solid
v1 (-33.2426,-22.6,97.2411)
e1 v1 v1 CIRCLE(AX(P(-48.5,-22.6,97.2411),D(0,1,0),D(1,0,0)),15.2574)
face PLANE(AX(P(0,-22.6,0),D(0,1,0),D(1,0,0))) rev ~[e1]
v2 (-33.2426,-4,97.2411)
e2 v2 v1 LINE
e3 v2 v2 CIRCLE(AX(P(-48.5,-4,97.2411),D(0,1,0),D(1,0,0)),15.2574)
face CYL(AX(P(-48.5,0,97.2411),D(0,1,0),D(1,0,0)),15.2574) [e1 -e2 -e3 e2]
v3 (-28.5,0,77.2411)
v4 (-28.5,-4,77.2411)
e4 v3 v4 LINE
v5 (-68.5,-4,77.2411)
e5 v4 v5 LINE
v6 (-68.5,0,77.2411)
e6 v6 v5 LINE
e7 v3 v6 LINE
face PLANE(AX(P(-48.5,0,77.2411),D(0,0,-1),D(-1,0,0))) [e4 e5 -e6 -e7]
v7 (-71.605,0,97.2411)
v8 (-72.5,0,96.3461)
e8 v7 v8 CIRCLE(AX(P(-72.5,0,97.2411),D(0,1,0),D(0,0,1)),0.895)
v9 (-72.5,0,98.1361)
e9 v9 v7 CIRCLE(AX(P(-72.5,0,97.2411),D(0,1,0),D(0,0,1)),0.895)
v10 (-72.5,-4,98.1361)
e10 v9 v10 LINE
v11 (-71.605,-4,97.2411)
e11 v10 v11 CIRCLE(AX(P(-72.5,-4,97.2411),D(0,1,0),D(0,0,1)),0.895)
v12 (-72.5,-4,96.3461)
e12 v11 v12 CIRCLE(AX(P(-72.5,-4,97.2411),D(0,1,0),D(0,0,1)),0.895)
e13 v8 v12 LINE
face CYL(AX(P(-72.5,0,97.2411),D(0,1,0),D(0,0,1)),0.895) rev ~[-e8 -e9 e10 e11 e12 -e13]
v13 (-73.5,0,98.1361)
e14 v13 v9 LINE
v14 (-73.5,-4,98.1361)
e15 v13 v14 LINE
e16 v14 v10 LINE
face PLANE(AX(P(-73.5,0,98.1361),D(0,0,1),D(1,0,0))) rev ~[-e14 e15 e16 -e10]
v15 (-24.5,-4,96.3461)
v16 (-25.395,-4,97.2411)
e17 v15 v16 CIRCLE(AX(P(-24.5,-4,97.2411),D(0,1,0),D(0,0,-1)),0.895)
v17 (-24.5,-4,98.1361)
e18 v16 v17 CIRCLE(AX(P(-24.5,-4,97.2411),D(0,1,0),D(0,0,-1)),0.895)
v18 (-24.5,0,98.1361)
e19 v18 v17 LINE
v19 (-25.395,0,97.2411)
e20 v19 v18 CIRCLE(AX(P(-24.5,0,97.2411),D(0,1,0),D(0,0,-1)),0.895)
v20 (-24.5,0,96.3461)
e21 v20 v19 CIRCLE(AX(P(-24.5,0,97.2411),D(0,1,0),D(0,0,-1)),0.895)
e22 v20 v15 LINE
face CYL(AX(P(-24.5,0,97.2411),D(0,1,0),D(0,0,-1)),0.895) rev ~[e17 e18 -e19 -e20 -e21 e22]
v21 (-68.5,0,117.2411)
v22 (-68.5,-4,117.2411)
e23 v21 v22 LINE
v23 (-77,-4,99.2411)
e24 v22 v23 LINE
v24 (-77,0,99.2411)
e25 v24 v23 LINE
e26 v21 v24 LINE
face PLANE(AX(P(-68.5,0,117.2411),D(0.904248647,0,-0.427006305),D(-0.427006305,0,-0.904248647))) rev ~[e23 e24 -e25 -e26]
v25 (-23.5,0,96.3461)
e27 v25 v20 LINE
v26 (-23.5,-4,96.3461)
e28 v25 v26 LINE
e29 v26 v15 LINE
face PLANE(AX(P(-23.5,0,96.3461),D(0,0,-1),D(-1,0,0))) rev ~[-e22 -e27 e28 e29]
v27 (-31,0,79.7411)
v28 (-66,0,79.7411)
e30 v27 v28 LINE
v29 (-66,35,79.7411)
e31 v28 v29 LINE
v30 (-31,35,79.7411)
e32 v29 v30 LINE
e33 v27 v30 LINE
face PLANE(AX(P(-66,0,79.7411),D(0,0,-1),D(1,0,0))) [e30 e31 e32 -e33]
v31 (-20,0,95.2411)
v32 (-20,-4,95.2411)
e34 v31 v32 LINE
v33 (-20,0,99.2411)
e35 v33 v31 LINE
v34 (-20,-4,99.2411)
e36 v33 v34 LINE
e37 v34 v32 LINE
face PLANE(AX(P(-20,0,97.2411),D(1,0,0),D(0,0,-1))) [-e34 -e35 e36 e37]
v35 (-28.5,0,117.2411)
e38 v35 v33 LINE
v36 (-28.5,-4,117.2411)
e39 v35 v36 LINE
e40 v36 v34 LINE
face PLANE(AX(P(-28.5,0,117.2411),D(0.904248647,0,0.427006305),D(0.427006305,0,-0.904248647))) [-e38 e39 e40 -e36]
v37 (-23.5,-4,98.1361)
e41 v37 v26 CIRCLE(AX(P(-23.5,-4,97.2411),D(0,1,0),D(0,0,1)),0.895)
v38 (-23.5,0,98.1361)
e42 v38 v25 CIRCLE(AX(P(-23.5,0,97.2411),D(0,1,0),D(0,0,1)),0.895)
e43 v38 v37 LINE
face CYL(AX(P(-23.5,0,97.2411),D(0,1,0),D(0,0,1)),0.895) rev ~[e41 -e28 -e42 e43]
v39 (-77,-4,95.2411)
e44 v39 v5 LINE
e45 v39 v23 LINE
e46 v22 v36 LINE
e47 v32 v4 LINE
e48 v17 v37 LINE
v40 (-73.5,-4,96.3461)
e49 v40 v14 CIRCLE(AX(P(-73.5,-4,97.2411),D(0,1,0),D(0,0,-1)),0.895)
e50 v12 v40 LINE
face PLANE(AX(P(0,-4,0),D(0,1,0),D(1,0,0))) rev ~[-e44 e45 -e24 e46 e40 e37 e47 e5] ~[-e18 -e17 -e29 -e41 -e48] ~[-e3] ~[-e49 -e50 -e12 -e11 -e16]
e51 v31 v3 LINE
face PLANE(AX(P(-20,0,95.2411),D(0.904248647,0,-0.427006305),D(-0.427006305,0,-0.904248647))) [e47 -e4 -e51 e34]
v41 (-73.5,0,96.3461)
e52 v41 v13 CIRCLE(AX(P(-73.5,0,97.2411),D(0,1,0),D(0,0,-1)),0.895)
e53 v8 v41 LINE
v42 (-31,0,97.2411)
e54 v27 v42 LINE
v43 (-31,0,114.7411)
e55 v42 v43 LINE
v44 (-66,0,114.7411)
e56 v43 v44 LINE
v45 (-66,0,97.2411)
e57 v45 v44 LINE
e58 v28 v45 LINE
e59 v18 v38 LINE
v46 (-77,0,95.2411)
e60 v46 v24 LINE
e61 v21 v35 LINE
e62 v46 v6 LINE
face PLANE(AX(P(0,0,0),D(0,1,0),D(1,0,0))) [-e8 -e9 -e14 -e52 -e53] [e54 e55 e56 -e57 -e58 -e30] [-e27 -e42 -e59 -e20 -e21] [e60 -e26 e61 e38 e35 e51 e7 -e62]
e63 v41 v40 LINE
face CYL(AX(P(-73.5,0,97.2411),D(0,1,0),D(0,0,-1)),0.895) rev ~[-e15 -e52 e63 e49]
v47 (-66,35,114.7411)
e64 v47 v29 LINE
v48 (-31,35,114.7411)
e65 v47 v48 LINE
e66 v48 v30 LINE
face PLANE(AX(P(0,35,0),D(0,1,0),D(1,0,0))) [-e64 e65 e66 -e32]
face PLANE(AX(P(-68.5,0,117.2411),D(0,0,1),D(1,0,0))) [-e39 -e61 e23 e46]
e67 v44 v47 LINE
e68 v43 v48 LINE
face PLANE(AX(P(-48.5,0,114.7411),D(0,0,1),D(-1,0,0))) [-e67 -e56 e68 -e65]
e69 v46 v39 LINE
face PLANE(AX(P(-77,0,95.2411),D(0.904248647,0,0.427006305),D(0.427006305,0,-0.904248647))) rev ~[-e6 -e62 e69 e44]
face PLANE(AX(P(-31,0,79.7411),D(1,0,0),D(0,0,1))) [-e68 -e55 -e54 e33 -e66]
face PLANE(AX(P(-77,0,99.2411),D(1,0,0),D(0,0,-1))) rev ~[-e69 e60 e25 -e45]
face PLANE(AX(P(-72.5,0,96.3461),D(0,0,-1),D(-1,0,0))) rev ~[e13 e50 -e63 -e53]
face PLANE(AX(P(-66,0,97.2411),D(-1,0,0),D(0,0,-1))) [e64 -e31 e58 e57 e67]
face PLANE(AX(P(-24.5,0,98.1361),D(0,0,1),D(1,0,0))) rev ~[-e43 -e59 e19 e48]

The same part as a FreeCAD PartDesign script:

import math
import FreeCAD as App
import Part
import Sketcher

doc = App.newDocument("Part")
body = doc.addObject("PartDesign::Body", "Body")

# Sketch on XZ plane
sketch1 = body.newObject("Sketcher::SketchObject", "Sketch")
sketch1.AttachmentSupport = (doc.getObject("XZ_Plane"), [""])
sketch1.MapMode = "FlatFace"
sketch1.addGeometry([
    Part.LineSegment(App.Vector(-66, 80, 0), App.Vector(-66, 115, 0)),
    Part.LineSegment(App.Vector(-66, 115, 0), App.Vector(-31, 115, 0)),
    Part.LineSegment(App.Vector(-31, 115, 0), App.Vector(-31, 80, 0)),
    Part.LineSegment(App.Vector(-31, 80, 0), App.Vector(-66, 80, 0)),
], False)
sketch1.addConstraint([
    Sketcher.Constraint("Coincident", 0, 2, 1, 1),
    Sketcher.Constraint("Coincident", 1, 2, 2, 1),
    Sketcher.Constraint("Coincident", 2, 2, 3, 1),
    Sketcher.Constraint("Coincident", 3, 2, 0, 1),
    Sketcher.Constraint("Vertical", 0),
    Sketcher.Constraint("Horizontal", 1),
    Sketcher.Constraint("Vertical", 2),
    Sketcher.Constraint("Horizontal", 3),
    Sketcher.Constraint("Equal", 3, 0),
    Sketcher.Constraint("DistanceX", 1, 1, 1, 2, 35.0),
    Sketcher.Constraint("DistanceX", 0, 2, -1, 1, 66.0),
    Sketcher.Constraint("DistanceY", -1, 1, 0, 2, 114.741),
])
pad1 = body.newObject("PartDesign::Pad", "Pad")
pad1.Profile = sketch1
pad1.Length = 35
pad1.Reversed = True

# Sketch on XZ plane
sketch2 = body.newObject("Sketcher::SketchObject", "Sketch001")
sketch2.AttachmentSupport = (doc.getObject("XZ_Plane"), [""])
sketch2.MapMode = "FlatFace"
sketch2.addGeometry([
    Part.LineSegment(App.Vector(-68.5, 117.2, 0), App.Vector(-28.5, 117.2, 0)),  # 0
    Part.LineSegment(App.Vector(-28.5, 117.2, 0), App.Vector(-20, 99.2, 0)),  # 1
    Part.LineSegment(App.Vector(-20, 99.2, 0), App.Vector(-20, 95.2, 0)),  # 2
    Part.LineSegment(App.Vector(-20, 95.2, 0), App.Vector(-28.5, 77.2, 0)),  # 3
    Part.LineSegment(App.Vector(-28.5, 77.2, 0), App.Vector(-68.5, 77.2, 0)),  # 4
    Part.LineSegment(App.Vector(-68.5, 77.2, 0), App.Vector(-77, 95.2, 0)),  # 5
    Part.LineSegment(App.Vector(-77, 95.2, 0), App.Vector(-77, 99.2, 0)),  # 6
    Part.LineSegment(App.Vector(-77, 99.2, 0), App.Vector(-68.5, 117.2, 0)),  # 7
    Part.ArcOfCircle(Part.Circle(App.Vector(-72.5, 97.2, 0), App.Vector(0, 0, 1), 0.9), math.radians(-90), math.radians(0)),  # 8
    Part.ArcOfCircle(Part.Circle(App.Vector(-72.5, 97.2, 0), App.Vector(0, 0, 1), 0.9), math.radians(0), math.radians(90)),  # 9
    Part.LineSegment(App.Vector(-72.5, 98.1, 0), App.Vector(-73.5, 98.1, 0)),  # 10
    Part.ArcOfCircle(Part.Circle(App.Vector(-73.5, 97.2, 0), App.Vector(0, 0, 1), 0.9), math.radians(90), math.radians(270)),  # 11
    Part.LineSegment(App.Vector(-73.5, 96.3, 0), App.Vector(-72.5, 96.3, 0)),  # 12
    Part.ArcOfCircle(Part.Circle(App.Vector(-24.5, 97.2, 0), App.Vector(0, 0, 1), 0.9), math.radians(180), math.radians(270)),  # 13
    Part.LineSegment(App.Vector(-24.5, 96.3, 0), App.Vector(-23.5, 96.3, 0)),  # 14
    Part.ArcOfCircle(Part.Circle(App.Vector(-23.5, 97.2, 0), App.Vector(0, 0, 1), 0.9), math.radians(-90), math.radians(90)),  # 15
    Part.LineSegment(App.Vector(-23.5, 98.1, 0), App.Vector(-24.5, 98.1, 0)),  # 16
    Part.ArcOfCircle(Part.Circle(App.Vector(-24.5, 97.2, 0), App.Vector(0, 0, 1), 0.9), math.radians(90), math.radians(180)),  # 17
], False)
sketch2.addConstraint([
    Sketcher.Constraint("Coincident", 0, 2, 1, 1),
    Sketcher.Constraint("Coincident", 1, 2, 2, 1),
    Sketcher.Constraint("Coincident", 2, 2, 3, 1),
    Sketcher.Constraint("Coincident", 3, 2, 4, 1),
    Sketcher.Constraint("Coincident", 4, 2, 5, 1),
    Sketcher.Constraint("Coincident", 5, 2, 6, 1),
    Sketcher.Constraint("Coincident", 6, 2, 7, 1),
    Sketcher.Constraint("Coincident", 7, 2, 0, 1),
    Sketcher.Constraint("Tangent", 8, 2, 9, 1),
    Sketcher.Constraint("Tangent", 9, 2, 10, 1),
    Sketcher.Constraint("Tangent", 10, 2, 11, 1),
    Sketcher.Constraint("Tangent", 11, 2, 12, 1),
    Sketcher.Constraint("Tangent", 12, 2, 8, 1),
    Sketcher.Constraint("Tangent", 13, 2, 14, 1),
    Sketcher.Constraint("Tangent", 14, 2, 15, 1),
    Sketcher.Constraint("Tangent", 15, 2, 16, 1),
    Sketcher.Constraint("Tangent", 16, 2, 17, 1),
    Sketcher.Constraint("Tangent", 17, 2, 13, 1),
    Sketcher.Constraint("Horizontal", 0),
    Sketcher.Constraint("Vertical", 2),
    Sketcher.Constraint("Horizontal", 4),
    Sketcher.Constraint("Vertical", 6),
    Sketcher.Constraint("Horizontal", 10),
    Sketcher.Constraint("Horizontal", 12),
    Sketcher.Constraint("Horizontal", 14),
    Sketcher.Constraint("Horizontal", 16),
    Sketcher.Constraint("Equal", 8, 9),
    Sketcher.Constraint("Equal", 11, 13),
    Sketcher.Constraint("Equal", 13, 15),
    Sketcher.Constraint("Parallel", 1, 5),
    Sketcher.Constraint("Parallel", 3, 7),
    Sketcher.Constraint("Horizontal", 11, 3, 13, 3),
    Sketcher.Constraint("Horizontal", 2, 2, 5, 2),
    Sketcher.Constraint("Horizontal", 1, 2, 6, 2),
    Sketcher.Constraint("Horizontal", 17, 3, 8, 2),
    Sketcher.Constraint("Horizontal", 8, 2, 17, 2),
    Sketcher.Constraint("Vertical", 0, 2, 3, 2),
    Sketcher.Constraint("Vertical", 4, 2, 7, 2),
    Sketcher.Constraint("Equal", 12, 14),
    Sketcher.Constraint("DistanceX", 0, 1, 0, 2, 40.0),
    Sketcher.Constraint("DistanceY", 2, 2, 2, 1, 4.0),
    Sketcher.Constraint("Radius", 8, 0.895),
    Sketcher.Constraint("DistanceX", 8, 3, 13, 3, 48.0),
    Sketcher.Constraint("DistanceX", 11, 3, 15, 3, 50.0),
    Sketcher.Constraint("DistanceX", 0, 2, 13, 3, 4.0),
    Sketcher.Constraint("DistanceX", 1, 2, -1, 1, 20.0),
    Sketcher.Constraint("DistanceX", 5, 2, -1, 1, 77.0),
    Sketcher.Constraint("DistanceY", 13, 3, 0, 2, 20.0),
    Sketcher.Constraint("DistanceY", 15, 3, 1, 2, 2.0),
    Sketcher.Constraint("DistanceY", -1, 1, 8, 3, 97.241),
])
pad2 = body.newObject("PartDesign::Pad", "Pad001")
pad2.Profile = sketch2
pad2.Length = 4

# Sketch on XZ plane
sketch3 = body.newObject("Sketcher::SketchObject", "Sketch002")
sketch3.AttachmentSupport = (doc.getObject("XZ_Plane"), [""])
sketch3.MapMode = "FlatFace"
sketch3.addGeometry(Part.Circle(App.Vector(-48, 97, 0), App.Vector(0, 0, 1), 15), False)
sketch3.addConstraint([
    Sketcher.Constraint("Diameter", 0, 30.5148),
    Sketcher.Constraint("DistanceX", 0, 3, -1, 1, 48.5),
    Sketcher.Constraint("DistanceY", -1, 1, 0, 3, 97.241),
])
pad3 = body.newObject("PartDesign::Pad", "Pad002")
pad3.Profile = sketch3
pad3.Length = 22.6

doc.recompute()
